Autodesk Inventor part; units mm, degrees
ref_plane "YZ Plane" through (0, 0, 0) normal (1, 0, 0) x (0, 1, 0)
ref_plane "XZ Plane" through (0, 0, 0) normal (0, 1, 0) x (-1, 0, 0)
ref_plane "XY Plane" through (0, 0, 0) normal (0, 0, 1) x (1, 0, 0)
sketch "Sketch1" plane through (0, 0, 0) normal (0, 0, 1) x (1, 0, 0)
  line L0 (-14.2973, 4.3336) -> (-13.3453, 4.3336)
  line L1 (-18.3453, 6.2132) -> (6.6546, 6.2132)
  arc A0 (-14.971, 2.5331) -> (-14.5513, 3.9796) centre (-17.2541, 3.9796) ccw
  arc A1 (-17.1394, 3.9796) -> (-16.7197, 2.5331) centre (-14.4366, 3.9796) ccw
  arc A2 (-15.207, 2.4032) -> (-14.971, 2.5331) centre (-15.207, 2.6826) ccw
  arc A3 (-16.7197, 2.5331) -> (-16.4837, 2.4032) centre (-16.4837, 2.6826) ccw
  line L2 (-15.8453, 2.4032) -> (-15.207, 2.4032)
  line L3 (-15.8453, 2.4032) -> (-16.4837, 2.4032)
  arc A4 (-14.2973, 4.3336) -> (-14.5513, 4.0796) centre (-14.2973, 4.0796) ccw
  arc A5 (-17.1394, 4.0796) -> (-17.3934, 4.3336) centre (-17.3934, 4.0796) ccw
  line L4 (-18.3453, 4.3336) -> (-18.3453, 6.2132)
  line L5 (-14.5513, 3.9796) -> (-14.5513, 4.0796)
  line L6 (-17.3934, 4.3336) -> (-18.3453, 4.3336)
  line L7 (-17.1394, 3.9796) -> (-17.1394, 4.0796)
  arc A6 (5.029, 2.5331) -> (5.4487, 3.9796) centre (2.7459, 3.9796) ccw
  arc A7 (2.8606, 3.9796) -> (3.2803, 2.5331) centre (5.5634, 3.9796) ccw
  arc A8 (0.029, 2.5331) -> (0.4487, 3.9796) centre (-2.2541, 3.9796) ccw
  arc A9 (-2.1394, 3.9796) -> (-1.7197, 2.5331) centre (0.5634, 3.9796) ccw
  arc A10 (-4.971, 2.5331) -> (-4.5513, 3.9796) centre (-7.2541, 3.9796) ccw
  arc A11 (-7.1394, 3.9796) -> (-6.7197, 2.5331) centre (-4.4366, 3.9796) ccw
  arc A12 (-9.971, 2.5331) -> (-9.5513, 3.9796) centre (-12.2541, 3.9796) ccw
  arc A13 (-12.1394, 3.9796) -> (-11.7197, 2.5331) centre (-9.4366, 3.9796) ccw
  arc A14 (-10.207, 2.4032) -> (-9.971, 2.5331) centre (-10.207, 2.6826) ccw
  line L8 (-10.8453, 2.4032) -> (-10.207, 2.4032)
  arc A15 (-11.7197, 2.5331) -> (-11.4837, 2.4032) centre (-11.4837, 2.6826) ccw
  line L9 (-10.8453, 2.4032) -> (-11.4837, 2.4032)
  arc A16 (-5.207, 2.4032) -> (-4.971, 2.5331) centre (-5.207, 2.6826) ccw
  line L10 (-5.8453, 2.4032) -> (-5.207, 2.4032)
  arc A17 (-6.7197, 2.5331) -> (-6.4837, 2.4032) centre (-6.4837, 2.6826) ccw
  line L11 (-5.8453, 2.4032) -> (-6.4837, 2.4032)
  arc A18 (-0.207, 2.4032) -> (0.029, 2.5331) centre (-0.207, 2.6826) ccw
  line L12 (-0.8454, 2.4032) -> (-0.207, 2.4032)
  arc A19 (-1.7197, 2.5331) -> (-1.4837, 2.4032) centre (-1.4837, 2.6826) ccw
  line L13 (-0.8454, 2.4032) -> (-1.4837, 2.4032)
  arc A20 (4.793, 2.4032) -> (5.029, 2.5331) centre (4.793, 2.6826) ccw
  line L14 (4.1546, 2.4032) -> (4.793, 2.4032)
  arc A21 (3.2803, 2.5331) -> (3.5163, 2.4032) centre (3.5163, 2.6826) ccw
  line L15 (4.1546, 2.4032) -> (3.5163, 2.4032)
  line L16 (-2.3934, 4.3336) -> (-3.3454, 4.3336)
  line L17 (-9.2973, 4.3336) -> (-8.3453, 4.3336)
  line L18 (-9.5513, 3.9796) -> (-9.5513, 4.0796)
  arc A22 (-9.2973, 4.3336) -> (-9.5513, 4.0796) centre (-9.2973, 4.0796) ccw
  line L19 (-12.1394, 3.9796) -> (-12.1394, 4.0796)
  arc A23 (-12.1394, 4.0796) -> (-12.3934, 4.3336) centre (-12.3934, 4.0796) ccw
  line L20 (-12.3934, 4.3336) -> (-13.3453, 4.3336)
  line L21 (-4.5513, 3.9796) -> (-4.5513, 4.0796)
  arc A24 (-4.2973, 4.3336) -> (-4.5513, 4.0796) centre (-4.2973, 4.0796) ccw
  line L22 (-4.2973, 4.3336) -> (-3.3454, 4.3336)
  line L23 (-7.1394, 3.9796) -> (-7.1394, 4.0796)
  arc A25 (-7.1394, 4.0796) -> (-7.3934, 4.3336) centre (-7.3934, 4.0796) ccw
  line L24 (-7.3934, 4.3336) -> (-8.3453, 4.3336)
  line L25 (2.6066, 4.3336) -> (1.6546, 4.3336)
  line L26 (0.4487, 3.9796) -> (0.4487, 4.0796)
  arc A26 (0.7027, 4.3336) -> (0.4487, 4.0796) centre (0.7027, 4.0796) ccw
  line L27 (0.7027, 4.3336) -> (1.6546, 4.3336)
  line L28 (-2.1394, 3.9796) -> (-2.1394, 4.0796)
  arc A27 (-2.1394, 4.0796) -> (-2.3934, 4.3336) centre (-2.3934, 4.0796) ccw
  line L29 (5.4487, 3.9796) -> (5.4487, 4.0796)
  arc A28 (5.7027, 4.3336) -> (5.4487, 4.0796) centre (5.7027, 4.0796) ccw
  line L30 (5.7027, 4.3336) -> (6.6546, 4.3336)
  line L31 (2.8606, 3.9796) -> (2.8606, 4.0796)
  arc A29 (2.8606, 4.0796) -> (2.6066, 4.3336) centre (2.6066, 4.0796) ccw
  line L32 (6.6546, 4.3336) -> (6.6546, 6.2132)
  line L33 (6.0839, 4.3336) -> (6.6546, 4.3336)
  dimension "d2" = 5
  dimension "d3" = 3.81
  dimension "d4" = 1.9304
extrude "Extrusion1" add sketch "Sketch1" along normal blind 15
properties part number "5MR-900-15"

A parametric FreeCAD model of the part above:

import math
import FreeCAD as App
import Part
import Sketcher
from FreeCAD import Vector
Q = App.Units.Quantity

doc = App.newDocument("Part")
body = doc.addObject("PartDesign::Body", "Body")

sketch1 = body.newObject("Sketcher::SketchObject", "Sketch")
sketch1.AttachmentSupport = (doc.getObject("XY_Plane"), [""])
sketch1.MapMode = "FlatFace"
sketch1.addGeometry(Part.ArcOfCircle(Part.Circle(Vector(-14.2973, 4.0796, 0), Vector(0, 0, 1), 0.254), math.radians(90), math.radians(180)), False)
sketch1.addGeometry(Part.LineSegment(Vector(-14.2973, 4.3336, 0), Vector(-12.3934, 4.3336, 0)), False)
sketch1.addGeometry(Part.ArcOfCircle(Part.Circle(Vector(-12.3934, 4.0796, 0), Vector(0, 0, 1), 0.254), math.radians(0), math.radians(90)), False)
sketch1.addGeometry(Part.LineSegment(Vector(-12.1394, 4.0796, 0), Vector(-12.1394, 3.9796, 0)), False)
sketch1.addGeometry(Part.ArcOfCircle(Part.Circle(Vector(-9.4366, 3.9796, 0), Vector(0, 0, 1), 2.7028), math.radians(180), math.radians(212.357055)), False)
sketch1.addGeometry(Part.ArcOfCircle(Part.Circle(Vector(-11.4837, 2.6826, 0), Vector(0, 0, 1), 0.279368), math.radians(-147.646781), math.radians(-90)), False)
sketch1.addGeometry(Part.LineSegment(Vector(-11.4837, 2.4032, 0), Vector(-10.207, 2.4032, 0)), False)
sketch1.addGeometry(Part.ArcOfCircle(Part.Circle(Vector(-10.207, 2.6826, 0), Vector(0, 0, 1), 0.2794), math.radians(-90), math.radians(-32.353219)), False)
sketch1.addGeometry(Part.ArcOfCircle(Part.Circle(Vector(-12.2541, 3.9796, 0), Vector(0, 0, 1), 2.702759), math.radians(-32.357055), math.radians(0)), False)
sketch1.addGeometry(Part.LineSegment(Vector(-9.5513, 3.9796, 0), Vector(-9.5513, 4.0796, 0)), False)
sketch1.addGeometry(Part.ArcOfCircle(Part.Circle(Vector(-9.2973, 4.0796, 0), Vector(0, 0, 1), 0.254), math.radians(90), math.radians(180)), False)
sketch1.addGeometry(Part.LineSegment(Vector(-9.2973, 4.3336, 0), Vector(-7.3934, 4.3336, 0)), False)
sketch1.addGeometry(Part.ArcOfCircle(Part.Circle(Vector(-7.3934, 4.0796, 0), Vector(0, 0, 1), 0.254), math.radians(0), math.radians(90)), False)
sketch1.addGeometry(Part.LineSegment(Vector(-7.1394, 4.0796, 0), Vector(-7.1394, 3.9796, 0)), False)
sketch1.addGeometry(Part.ArcOfCircle(Part.Circle(Vector(-4.4366, 3.9796, 0), Vector(0, 0, 1), 2.7028), math.radians(180), math.radians(212.357055)), False)
sketch1.addGeometry(Part.ArcOfCircle(Part.Circle(Vector(-6.4837, 2.6826, 0), Vector(0, 0, 1), 0.279368), math.radians(-147.646781), math.radians(-90)), False)
sketch1.addGeometry(Part.LineSegment(Vector(-6.4837, 2.4032, 0), Vector(-5.207, 2.4032, 0)), False)
sketch1.addGeometry(Part.ArcOfCircle(Part.Circle(Vector(-5.207, 2.6826, 0), Vector(0, 0, 1), 0.2794), math.radians(-90), math.radians(-32.353219)), False)
sketch1.addGeometry(Part.ArcOfCircle(Part.Circle(Vector(-7.2541, 3.9796, 0), Vector(0, 0, 1), 2.702759), math.radians(-32.357055), math.radians(0)), False)
sketch1.addGeometry(Part.LineSegment(Vector(-4.5513, 3.9796, 0), Vector(-4.5513, 4.0796, 0)), False)
sketch1.addGeometry(Part.ArcOfCircle(Part.Circle(Vector(-4.2973, 4.0796, 0), Vector(0, 0, 1), 0.254), math.radians(90), math.radians(180)), False)
sketch1.addGeometry(Part.LineSegment(Vector(-4.2973, 4.3336, 0), Vector(-2.3934, 4.3336, 0)), False)
sketch1.addGeometry(Part.ArcOfCircle(Part.Circle(Vector(-2.3934, 4.0796, 0), Vector(0, 0, 1), 0.254), math.radians(0), math.radians(90)), False)
sketch1.addGeometry(Part.LineSegment(Vector(-2.1394, 4.0796, 0), Vector(-2.1394, 3.9796, 0)), False)
sketch1.addGeometry(Part.ArcOfCircle(Part.Circle(Vector(0.5634, 3.9796, 0), Vector(0, 0, 1), 2.7028), math.radians(180), math.radians(212.357055)), False)
sketch1.addGeometry(Part.ArcOfCircle(Part.Circle(Vector(-1.4837, 2.6826, 0), Vector(0, 0, 1), 0.279368), math.radians(-147.646781), math.radians(-90)), False)
sketch1.addGeometry(Part.LineSegment(Vector(-1.4837, 2.4032, 0), Vector(-0.207, 2.4032, 0)), False)
sketch1.addGeometry(Part.ArcOfCircle(Part.Circle(Vector(-0.207, 2.6826, 0), Vector(0, 0, 1), 0.2794), math.radians(-90), math.radians(-32.353219)), False)
sketch1.addGeometry(Part.ArcOfCircle(Part.Circle(Vector(-2.2541, 3.9796, 0), Vector(0, 0, 1), 2.702759), math.radians(-32.357055), math.radians(0)), False)
sketch1.addGeometry(Part.LineSegment(Vector(0.4487, 3.9796, 0), Vector(0.4487, 4.0796, 0)), False)
sketch1.addGeometry(Part.ArcOfCircle(Part.Circle(Vector(0.7027, 4.0796, 0), Vector(0, 0, 1), 0.254), math.radians(90), math.radians(180)), False)
sketch1.addGeometry(Part.LineSegment(Vector(0.7027, 4.3336, 0), Vector(2.6066, 4.3336, 0)), False)
sketch1.addGeometry(Part.ArcOfCircle(Part.Circle(Vector(2.6066, 4.0796, 0), Vector(0, 0, 1), 0.254), math.radians(0), math.radians(90)), False)
sketch1.addGeometry(Part.LineSegment(Vector(2.8606, 4.0796, 0), Vector(2.8606, 3.9796, 0)), False)
sketch1.addGeometry(Part.ArcOfCircle(Part.Circle(Vector(5.5634, 3.9796, 0), Vector(0, 0, 1), 2.7028), math.radians(180), math.radians(212.357055)), False)
sketch1.addGeometry(Part.ArcOfCircle(Part.Circle(Vector(3.5163, 2.6826, 0), Vector(0, 0, 1), 0.279368), math.radians(-147.646781), math.radians(-90)), False)
sketch1.addGeometry(Part.LineSegment(Vector(3.5163, 2.4032, 0), Vector(4.793, 2.4032, 0)), False)
sketch1.addGeometry(Part.ArcOfCircle(Part.Circle(Vector(4.793, 2.6826, 0), Vector(0, 0, 1), 0.2794), math.radians(-90), math.radians(-32.353219)), False)
sketch1.addGeometry(Part.ArcOfCircle(Part.Circle(Vector(2.7459, 3.9796, 0), Vector(0, 0, 1), 2.702759), math.radians(-32.357055), math.radians(0)), False)
sketch1.addGeometry(Part.LineSegment(Vector(5.4487, 3.9796, 0), Vector(5.4487, 4.0796, 0)), False)
sketch1.addGeometry(Part.ArcOfCircle(Part.Circle(Vector(5.7027, 4.0796, 0), Vector(0, 0, 1), 0.254), math.radians(90), math.radians(180)), False)
sketch1.addGeometry(Part.LineSegment(Vector(5.7027, 4.3336, 0), Vector(6.6546, 4.3336, 0)), False)
sketch1.addGeometry(Part.LineSegment(Vector(6.6546, 4.3336, 0), Vector(6.6546, 6.2132, 0)), False)
sketch1.addGeometry(Part.LineSegment(Vector(6.6546, 6.2132, 0), Vector(-18.3453, 6.2132, 0)), False)
sketch1.addGeometry(Part.LineSegment(Vector(-18.3453, 6.2132, 0), Vector(-18.3453, 4.3336, 0)), False)
sketch1.addGeometry(Part.LineSegment(Vector(-18.3453, 4.3336, 0), Vector(-17.3934, 4.3336, 0)), False)
sketch1.addGeometry(Part.ArcOfCircle(Part.Circle(Vector(-17.3934, 4.0796, 0), Vector(0, 0, 1), 0.254), math.radians(0), math.radians(90)), False)
sketch1.addGeometry(Part.LineSegment(Vector(-17.1394, 4.0796, 0), Vector(-17.1394, 3.9796, 0)), False)
sketch1.addGeometry(Part.ArcOfCircle(Part.Circle(Vector(-14.4366, 3.9796, 0), Vector(0, 0, 1), 2.7028), math.radians(180), math.radians(212.357055)), False)
sketch1.addGeometry(Part.ArcOfCircle(Part.Circle(Vector(-16.4837, 2.6826, 0), Vector(0, 0, 1), 0.279368), math.radians(-147.646781), math.radians(-90)), False)
sketch1.addGeometry(Part.LineSegment(Vector(-16.4837, 2.4032, 0), Vector(-15.207, 2.4032, 0)), False)
sketch1.addGeometry(Part.ArcOfCircle(Part.Circle(Vector(-15.207, 2.6826, 0), Vector(0, 0, 1), 0.2794), math.radians(-90), math.radians(-32.353219)), False)
sketch1.addGeometry(Part.ArcOfCircle(Part.Circle(Vector(-17.2541, 3.9796, 0), Vector(0, 0, 1), 2.702759), math.radians(-32.357055), math.radians(0)), False)
sketch1.addGeometry(Part.LineSegment(Vector(-14.5513, 3.9796, 0), Vector(-14.5513, 4.0796, 0)), False)
sketch1.addConstraint(Sketcher.Constraint("Tangent", 0, 1, 1, 1))
sketch1.addConstraint(Sketcher.Constraint("Tangent", 1, 2, 2, 2))
sketch1.addConstraint(Sketcher.Constraint("Tangent", 2, 1, 3, 1))
sketch1.addConstraint(Sketcher.Constraint("Tangent", 3, 2, 4, 1))
sketch1.addConstraint(Sketcher.Constraint("Tangent", 4, 2, 5, 1))
sketch1.addConstraint(Sketcher.Constraint("Tangent", 5, 2, 6, 1))
sketch1.addConstraint(Sketcher.Constraint("Tangent", 6, 2, 7, 1))
sketch1.addConstraint(Sketcher.Constraint("Tangent", 7, 2, 8, 1))
sketch1.addConstraint(Sketcher.Constraint("Tangent", 8, 2, 9, 1))
sketch1.addConstraint(Sketcher.Constraint("Tangent", 9, 2, 10, 2))
sketch1.addConstraint(Sketcher.Constraint("Tangent", 10, 1, 11, 1))
sketch1.addConstraint(Sketcher.Constraint("Tangent", 11, 2, 12, 2))
sketch1.addConstraint(Sketcher.Constraint("Tangent", 12, 1, 13, 1))
sketch1.addConstraint(Sketcher.Constraint("Tangent", 13, 2, 14, 1))
sketch1.addConstraint(Sketcher.Constraint("Tangent", 14, 2, 15, 1))
sketch1.addConstraint(Sketcher.Constraint("Tangent", 15, 2, 16, 1))
sketch1.addConstraint(Sketcher.Constraint("Tangent", 16, 2, 17, 1))
sketch1.addConstraint(Sketcher.Constraint("Tangent", 17, 2, 18, 1))
sketch1.addConstraint(Sketcher.Constraint("Tangent", 18, 2, 19, 1))
sketch1.addConstraint(Sketcher.Constraint("Tangent", 19, 2, 20, 2))
sketch1.addConstraint(Sketcher.Constraint("Tangent", 20, 1, 21, 1))
sketch1.addConstraint(Sketcher.Constraint("Tangent", 21, 2, 22, 2))
sketch1.addConstraint(Sketcher.Constraint("Tangent", 22, 1, 23, 1))
sketch1.addConstraint(Sketcher.Constraint("Tangent", 23, 2, 24, 1))
sketch1.addConstraint(Sketcher.Constraint("Tangent", 24, 2, 25, 1))
sketch1.addConstraint(Sketcher.Constraint("Tangent", 25, 2, 26, 1))
sketch1.addConstraint(Sketcher.Constraint("Tangent", 26, 2, 27, 1))
sketch1.addConstraint(Sketcher.Constraint("Tangent", 27, 2, 28, 1))
sketch1.addConstraint(Sketcher.Constraint("Tangent", 28, 2, 29, 1))
sketch1.addConstraint(Sketcher.Constraint("Tangent", 29, 2, 30, 2))
sketch1.addConstraint(Sketcher.Constraint("Tangent", 30, 1, 31, 1))
sketch1.addConstraint(Sketcher.Constraint("Tangent", 31, 2, 32, 2))
sketch1.addConstraint(Sketcher.Constraint("Tangent", 32, 1, 33, 1))
sketch1.addConstraint(Sketcher.Constraint("Tangent", 33, 2, 34, 1))
sketch1.addConstraint(Sketcher.Constraint("Tangent", 34, 2, 35, 1))
sketch1.addConstraint(Sketcher.Constraint("Tangent", 35, 2, 36, 1))
sketch1.addConstraint(Sketcher.Constraint("Tangent", 36, 2, 37, 1))
sketch1.addConstraint(Sketcher.Constraint("Tangent", 37, 2, 38, 1))
sketch1.addConstraint(Sketcher.Constraint("Tangent", 38, 2, 39, 1))
sketch1.addConstraint(Sketcher.Constraint("Tangent", 39, 2, 40, 2))
sketch1.addConstraint(Sketcher.Constraint("Tangent", 40, 1, 41, 1))
sketch1.addConstraint(Sketcher.Constraint("Coincident", 41, 2, 42, 1))
sketch1.addConstraint(Sketcher.Constraint("Coincident", 42, 2, 43, 1))
sketch1.addConstraint(Sketcher.Constraint("Coincident", 43, 2, 44, 1))
sketch1.addConstraint(Sketcher.Constraint("Coincident", 44, 2, 45, 1))
sketch1.addConstraint(Sketcher.Constraint("Tangent", 45, 2, 46, 2))
sketch1.addConstraint(Sketcher.Constraint("Tangent", 46, 1, 47, 1))
sketch1.addConstraint(Sketcher.Constraint("Tangent", 47, 2, 48, 1))
sketch1.addConstraint(Sketcher.Constraint("Tangent", 48, 2, 49, 1))
sketch1.addConstraint(Sketcher.Constraint("Tangent", 49, 2, 50, 1))
sketch1.addConstraint(Sketcher.Constraint("Tangent", 50, 2, 51, 1))
sketch1.addConstraint(Sketcher.Constraint("Tangent", 51, 2, 52, 1))
sketch1.addConstraint(Sketcher.Constraint("Tangent", 52, 2, 53, 1))
sketch1.addConstraint(Sketcher.Constraint("Tangent", 53, 2, 0, 2))
sketch1.addConstraint(Sketcher.Constraint("Horizontal", 1))
sketch1.addConstraint(Sketcher.Constraint("Vertical", 3))
sketch1.addConstraint(Sketcher.Constraint("Horizontal", 6))
sketch1.addConstraint(Sketcher.Constraint("Vertical", 9))
sketch1.addConstraint(Sketcher.Constraint("Horizontal", 11))
sketch1.addConstraint(Sketcher.Constraint("Vertical", 13))
sketch1.addConstraint(Sketcher.Constraint("Horizontal", 16))
sketch1.addConstraint(Sketcher.Constraint("Vertical", 19))
sketch1.addConstraint(Sketcher.Constraint("Horizontal", 21))
sketch1.addConstraint(Sketcher.Constraint("Vertical", 23))
sketch1.addConstraint(Sketcher.Constraint("Horizontal", 26))
sketch1.addConstraint(Sketcher.Constraint("Vertical", 29))
sketch1.addConstraint(Sketcher.Constraint("Horizontal", 31))
sketch1.addConstraint(Sketcher.Constraint("Vertical", 33))
sketch1.addConstraint(Sketcher.Constraint("Horizontal", 36))
sketch1.addConstraint(Sketcher.Constraint("Vertical", 39))
sketch1.addConstraint(Sketcher.Constraint("Horizontal", 41))
sketch1.addConstraint(Sketcher.Constraint("Vertical", 42))
sketch1.addConstraint(Sketcher.Constraint("Horizontal", 43))
sketch1.addConstraint(Sketcher.Constraint("Vertical", 44))
sketch1.addConstraint(Sketcher.Constraint("Horizontal", 45))
sketch1.addConstraint(Sketcher.Constraint("Vertical", 47))
sketch1.addConstraint(Sketcher.Constraint("Horizontal", 50))
sketch1.addConstraint(Sketcher.Constraint("Vertical", 53))
sketch1.addConstraint(Sketcher.Constraint("Equal", 0, 2))
sketch1.addConstraint(Sketcher.Constraint("Equal", 5, 7))
sketch1.addConstraint(Sketcher.Constraint("Equal", 4, 8))
sketch1.addConstraint(Sketcher.Constraint("Equal", 2, 10))
sketch1.addConstraint(Sketcher.Constraint("Equal", 10, 12))
sketch1.addConstraint(Sketcher.Constraint("Equal", 8, 14))
sketch1.addConstraint(Sketcher.Constraint("Equal", 7, 15))
sketch1.addConstraint(Sketcher.Constraint("Equal", 15, 17))
sketch1.addConstraint(Sketcher.Constraint("Equal", 14, 18))
sketch1.addConstraint(Sketcher.Constraint("Equal", 12, 20))
sketch1.addConstraint(Sketcher.Constraint("Equal", 20, 22))
sketch1.addConstraint(Sketcher.Constraint("Equal", 18, 24))
sketch1.addConstraint(Sketcher.Constraint("Equal", 17, 25))
sketch1.addConstraint(Sketcher.Constraint("Equal", 25, 27))
sketch1.addConstraint(Sketcher.Constraint("Equal", 24, 28))
sketch1.addConstraint(Sketcher.Constraint("Equal", 22, 30))
sketch1.addConstraint(Sketcher.Constraint("Equal", 30, 32))
sketch1.addConstraint(Sketcher.Constraint("Equal", 28, 34))
sketch1.addConstraint(Sketcher.Constraint("Equal", 27, 35))
sketch1.addConstraint(Sketcher.Constraint("Equal", 35, 37))
sketch1.addConstraint(Sketcher.Constraint("Equal", 34, 38))
sketch1.addConstraint(Sketcher.Constraint("Equal", 32, 40))
sketch1.addConstraint(Sketcher.Constraint("Equal", 40, 46))
sketch1.addConstraint(Sketcher.Constraint("Equal", 38, 48))
sketch1.addConstraint(Sketcher.Constraint("Equal", 37, 49))
sketch1.addConstraint(Sketcher.Constraint("Equal", 49, 51))
sketch1.addConstraint(Sketcher.Constraint("Equal", 48, 52))
sketch1.addConstraint(Sketcher.Constraint("Horizontal", 4, 3, 8, 3))
sketch1.addConstraint(Sketcher.Constraint("Horizontal", 2, 3, 10, 3))
sketch1.addConstraint(Sketcher.Constraint("Horizontal", 8, 3, 14, 3))
sketch1.addConstraint(Sketcher.Constraint("Horizontal", 7, 3, 15, 3))
sketch1.addConstraint(Sketcher.Constraint("Horizontal", 14, 3, 18, 3))
sketch1.addConstraint(Sketcher.Constraint("Horizontal", 12, 3, 20, 3))
sketch1.addConstraint(Sketcher.Constraint("Horizontal", 18, 3, 24, 3))
sketch1.addConstraint(Sketcher.Constraint("Horizontal", 17, 3, 25, 3))
sketch1.addConstraint(Sketcher.Constraint("Horizontal", 24, 3, 28, 3))
sketch1.addConstraint(Sketcher.Constraint("Horizontal", 22, 3, 30, 3))
sketch1.addConstraint(Sketcher.Constraint("Horizontal", 28, 3, 34, 3))
sketch1.addConstraint(Sketcher.Constraint("Horizontal", 27, 3, 35, 3))
sketch1.addConstraint(Sketcher.Constraint("Horizontal", 34, 3, 38, 3))
sketch1.addConstraint(Sketcher.Constraint("Horizontal", 32, 3, 40, 3))
sketch1.addConstraint(Sketcher.Constraint("Horizontal", 40, 3, 46, 3))
sketch1.addConstraint(Sketcher.Constraint("Horizontal", 38, 3, 48, 3))
sketch1.addConstraint(Sketcher.Constraint("Horizontal", 37, 3, 49, 3))
sketch1.addConstraint(Sketcher.Constraint("Horizontal", 48, 3, 52, 3))
sketch1.addConstraint(Sketcher.Constraint("Equal", 1, 11))
sketch1.addConstraint(Sketcher.Constraint("Equal", 6, 16))
sketch1.addConstraint(Sketcher.Constraint("Equal", 11, 21))
sketch1.addConstraint(Sketcher.Constraint("Equal", 16, 26))
sketch1.addConstraint(Sketcher.Constraint("Equal", 21, 31))
sketch1.addConstraint(Sketcher.Constraint("Equal", 26, 36))
sketch1.addConstraint(Sketcher.Constraint("Equal", 41, 45))
sketch1.addConstraint(Sketcher.Constraint("Equal", 36, 50))
sketch1.addConstraint(Sketcher.Constraint("Radius", 0, Q("0.01 in")))
sketch1.addConstraint(Sketcher.Constraint("Radius", 5, Q("0.011 in")))
sketch1.addConstraint(Sketcher.Constraint("Radius", 4, Q("0.1064 in")))
sketch1.addConstraint(Sketcher.Constraint("DistanceY", 42, 1, 42, 2, Q("0.074 in")))
sketch1.addConstraint(Sketcher.Constraint("DistanceX", 17, 3, -1, 1, Q("0.205 in")))
sketch1.addConstraint(Sketcher.Constraint("DistanceX", -1, 1, 37, 2, Q("0.198 in")))
sketch1.addConstraint(Sketcher.Constraint("DistanceX", -1, 1, 41, 2, Q("0.262 in")))
sketch1.addConstraint(Sketcher.Constraint("DistanceX", 1, 1, 1, 2, Q("1.904 mm")))
sketch1.addConstraint(Sketcher.Constraint("DistanceX", 6, 1, 6, 2, Q("1.2767 mm")))
sketch1.addConstraint(Sketcher.Constraint("DistanceY", 3, 2, 3, 1, Q("0.1 mm")))
sketch1.addConstraint(Sketcher.Constraint("DistanceY", -1, 1, 0, 3, Q("4.0796 mm")))
pad1 = body.newObject("PartDesign::Pad", "Pad")
pad1.Profile = sketch1
pad1.Length = 15

doc.recompute()
